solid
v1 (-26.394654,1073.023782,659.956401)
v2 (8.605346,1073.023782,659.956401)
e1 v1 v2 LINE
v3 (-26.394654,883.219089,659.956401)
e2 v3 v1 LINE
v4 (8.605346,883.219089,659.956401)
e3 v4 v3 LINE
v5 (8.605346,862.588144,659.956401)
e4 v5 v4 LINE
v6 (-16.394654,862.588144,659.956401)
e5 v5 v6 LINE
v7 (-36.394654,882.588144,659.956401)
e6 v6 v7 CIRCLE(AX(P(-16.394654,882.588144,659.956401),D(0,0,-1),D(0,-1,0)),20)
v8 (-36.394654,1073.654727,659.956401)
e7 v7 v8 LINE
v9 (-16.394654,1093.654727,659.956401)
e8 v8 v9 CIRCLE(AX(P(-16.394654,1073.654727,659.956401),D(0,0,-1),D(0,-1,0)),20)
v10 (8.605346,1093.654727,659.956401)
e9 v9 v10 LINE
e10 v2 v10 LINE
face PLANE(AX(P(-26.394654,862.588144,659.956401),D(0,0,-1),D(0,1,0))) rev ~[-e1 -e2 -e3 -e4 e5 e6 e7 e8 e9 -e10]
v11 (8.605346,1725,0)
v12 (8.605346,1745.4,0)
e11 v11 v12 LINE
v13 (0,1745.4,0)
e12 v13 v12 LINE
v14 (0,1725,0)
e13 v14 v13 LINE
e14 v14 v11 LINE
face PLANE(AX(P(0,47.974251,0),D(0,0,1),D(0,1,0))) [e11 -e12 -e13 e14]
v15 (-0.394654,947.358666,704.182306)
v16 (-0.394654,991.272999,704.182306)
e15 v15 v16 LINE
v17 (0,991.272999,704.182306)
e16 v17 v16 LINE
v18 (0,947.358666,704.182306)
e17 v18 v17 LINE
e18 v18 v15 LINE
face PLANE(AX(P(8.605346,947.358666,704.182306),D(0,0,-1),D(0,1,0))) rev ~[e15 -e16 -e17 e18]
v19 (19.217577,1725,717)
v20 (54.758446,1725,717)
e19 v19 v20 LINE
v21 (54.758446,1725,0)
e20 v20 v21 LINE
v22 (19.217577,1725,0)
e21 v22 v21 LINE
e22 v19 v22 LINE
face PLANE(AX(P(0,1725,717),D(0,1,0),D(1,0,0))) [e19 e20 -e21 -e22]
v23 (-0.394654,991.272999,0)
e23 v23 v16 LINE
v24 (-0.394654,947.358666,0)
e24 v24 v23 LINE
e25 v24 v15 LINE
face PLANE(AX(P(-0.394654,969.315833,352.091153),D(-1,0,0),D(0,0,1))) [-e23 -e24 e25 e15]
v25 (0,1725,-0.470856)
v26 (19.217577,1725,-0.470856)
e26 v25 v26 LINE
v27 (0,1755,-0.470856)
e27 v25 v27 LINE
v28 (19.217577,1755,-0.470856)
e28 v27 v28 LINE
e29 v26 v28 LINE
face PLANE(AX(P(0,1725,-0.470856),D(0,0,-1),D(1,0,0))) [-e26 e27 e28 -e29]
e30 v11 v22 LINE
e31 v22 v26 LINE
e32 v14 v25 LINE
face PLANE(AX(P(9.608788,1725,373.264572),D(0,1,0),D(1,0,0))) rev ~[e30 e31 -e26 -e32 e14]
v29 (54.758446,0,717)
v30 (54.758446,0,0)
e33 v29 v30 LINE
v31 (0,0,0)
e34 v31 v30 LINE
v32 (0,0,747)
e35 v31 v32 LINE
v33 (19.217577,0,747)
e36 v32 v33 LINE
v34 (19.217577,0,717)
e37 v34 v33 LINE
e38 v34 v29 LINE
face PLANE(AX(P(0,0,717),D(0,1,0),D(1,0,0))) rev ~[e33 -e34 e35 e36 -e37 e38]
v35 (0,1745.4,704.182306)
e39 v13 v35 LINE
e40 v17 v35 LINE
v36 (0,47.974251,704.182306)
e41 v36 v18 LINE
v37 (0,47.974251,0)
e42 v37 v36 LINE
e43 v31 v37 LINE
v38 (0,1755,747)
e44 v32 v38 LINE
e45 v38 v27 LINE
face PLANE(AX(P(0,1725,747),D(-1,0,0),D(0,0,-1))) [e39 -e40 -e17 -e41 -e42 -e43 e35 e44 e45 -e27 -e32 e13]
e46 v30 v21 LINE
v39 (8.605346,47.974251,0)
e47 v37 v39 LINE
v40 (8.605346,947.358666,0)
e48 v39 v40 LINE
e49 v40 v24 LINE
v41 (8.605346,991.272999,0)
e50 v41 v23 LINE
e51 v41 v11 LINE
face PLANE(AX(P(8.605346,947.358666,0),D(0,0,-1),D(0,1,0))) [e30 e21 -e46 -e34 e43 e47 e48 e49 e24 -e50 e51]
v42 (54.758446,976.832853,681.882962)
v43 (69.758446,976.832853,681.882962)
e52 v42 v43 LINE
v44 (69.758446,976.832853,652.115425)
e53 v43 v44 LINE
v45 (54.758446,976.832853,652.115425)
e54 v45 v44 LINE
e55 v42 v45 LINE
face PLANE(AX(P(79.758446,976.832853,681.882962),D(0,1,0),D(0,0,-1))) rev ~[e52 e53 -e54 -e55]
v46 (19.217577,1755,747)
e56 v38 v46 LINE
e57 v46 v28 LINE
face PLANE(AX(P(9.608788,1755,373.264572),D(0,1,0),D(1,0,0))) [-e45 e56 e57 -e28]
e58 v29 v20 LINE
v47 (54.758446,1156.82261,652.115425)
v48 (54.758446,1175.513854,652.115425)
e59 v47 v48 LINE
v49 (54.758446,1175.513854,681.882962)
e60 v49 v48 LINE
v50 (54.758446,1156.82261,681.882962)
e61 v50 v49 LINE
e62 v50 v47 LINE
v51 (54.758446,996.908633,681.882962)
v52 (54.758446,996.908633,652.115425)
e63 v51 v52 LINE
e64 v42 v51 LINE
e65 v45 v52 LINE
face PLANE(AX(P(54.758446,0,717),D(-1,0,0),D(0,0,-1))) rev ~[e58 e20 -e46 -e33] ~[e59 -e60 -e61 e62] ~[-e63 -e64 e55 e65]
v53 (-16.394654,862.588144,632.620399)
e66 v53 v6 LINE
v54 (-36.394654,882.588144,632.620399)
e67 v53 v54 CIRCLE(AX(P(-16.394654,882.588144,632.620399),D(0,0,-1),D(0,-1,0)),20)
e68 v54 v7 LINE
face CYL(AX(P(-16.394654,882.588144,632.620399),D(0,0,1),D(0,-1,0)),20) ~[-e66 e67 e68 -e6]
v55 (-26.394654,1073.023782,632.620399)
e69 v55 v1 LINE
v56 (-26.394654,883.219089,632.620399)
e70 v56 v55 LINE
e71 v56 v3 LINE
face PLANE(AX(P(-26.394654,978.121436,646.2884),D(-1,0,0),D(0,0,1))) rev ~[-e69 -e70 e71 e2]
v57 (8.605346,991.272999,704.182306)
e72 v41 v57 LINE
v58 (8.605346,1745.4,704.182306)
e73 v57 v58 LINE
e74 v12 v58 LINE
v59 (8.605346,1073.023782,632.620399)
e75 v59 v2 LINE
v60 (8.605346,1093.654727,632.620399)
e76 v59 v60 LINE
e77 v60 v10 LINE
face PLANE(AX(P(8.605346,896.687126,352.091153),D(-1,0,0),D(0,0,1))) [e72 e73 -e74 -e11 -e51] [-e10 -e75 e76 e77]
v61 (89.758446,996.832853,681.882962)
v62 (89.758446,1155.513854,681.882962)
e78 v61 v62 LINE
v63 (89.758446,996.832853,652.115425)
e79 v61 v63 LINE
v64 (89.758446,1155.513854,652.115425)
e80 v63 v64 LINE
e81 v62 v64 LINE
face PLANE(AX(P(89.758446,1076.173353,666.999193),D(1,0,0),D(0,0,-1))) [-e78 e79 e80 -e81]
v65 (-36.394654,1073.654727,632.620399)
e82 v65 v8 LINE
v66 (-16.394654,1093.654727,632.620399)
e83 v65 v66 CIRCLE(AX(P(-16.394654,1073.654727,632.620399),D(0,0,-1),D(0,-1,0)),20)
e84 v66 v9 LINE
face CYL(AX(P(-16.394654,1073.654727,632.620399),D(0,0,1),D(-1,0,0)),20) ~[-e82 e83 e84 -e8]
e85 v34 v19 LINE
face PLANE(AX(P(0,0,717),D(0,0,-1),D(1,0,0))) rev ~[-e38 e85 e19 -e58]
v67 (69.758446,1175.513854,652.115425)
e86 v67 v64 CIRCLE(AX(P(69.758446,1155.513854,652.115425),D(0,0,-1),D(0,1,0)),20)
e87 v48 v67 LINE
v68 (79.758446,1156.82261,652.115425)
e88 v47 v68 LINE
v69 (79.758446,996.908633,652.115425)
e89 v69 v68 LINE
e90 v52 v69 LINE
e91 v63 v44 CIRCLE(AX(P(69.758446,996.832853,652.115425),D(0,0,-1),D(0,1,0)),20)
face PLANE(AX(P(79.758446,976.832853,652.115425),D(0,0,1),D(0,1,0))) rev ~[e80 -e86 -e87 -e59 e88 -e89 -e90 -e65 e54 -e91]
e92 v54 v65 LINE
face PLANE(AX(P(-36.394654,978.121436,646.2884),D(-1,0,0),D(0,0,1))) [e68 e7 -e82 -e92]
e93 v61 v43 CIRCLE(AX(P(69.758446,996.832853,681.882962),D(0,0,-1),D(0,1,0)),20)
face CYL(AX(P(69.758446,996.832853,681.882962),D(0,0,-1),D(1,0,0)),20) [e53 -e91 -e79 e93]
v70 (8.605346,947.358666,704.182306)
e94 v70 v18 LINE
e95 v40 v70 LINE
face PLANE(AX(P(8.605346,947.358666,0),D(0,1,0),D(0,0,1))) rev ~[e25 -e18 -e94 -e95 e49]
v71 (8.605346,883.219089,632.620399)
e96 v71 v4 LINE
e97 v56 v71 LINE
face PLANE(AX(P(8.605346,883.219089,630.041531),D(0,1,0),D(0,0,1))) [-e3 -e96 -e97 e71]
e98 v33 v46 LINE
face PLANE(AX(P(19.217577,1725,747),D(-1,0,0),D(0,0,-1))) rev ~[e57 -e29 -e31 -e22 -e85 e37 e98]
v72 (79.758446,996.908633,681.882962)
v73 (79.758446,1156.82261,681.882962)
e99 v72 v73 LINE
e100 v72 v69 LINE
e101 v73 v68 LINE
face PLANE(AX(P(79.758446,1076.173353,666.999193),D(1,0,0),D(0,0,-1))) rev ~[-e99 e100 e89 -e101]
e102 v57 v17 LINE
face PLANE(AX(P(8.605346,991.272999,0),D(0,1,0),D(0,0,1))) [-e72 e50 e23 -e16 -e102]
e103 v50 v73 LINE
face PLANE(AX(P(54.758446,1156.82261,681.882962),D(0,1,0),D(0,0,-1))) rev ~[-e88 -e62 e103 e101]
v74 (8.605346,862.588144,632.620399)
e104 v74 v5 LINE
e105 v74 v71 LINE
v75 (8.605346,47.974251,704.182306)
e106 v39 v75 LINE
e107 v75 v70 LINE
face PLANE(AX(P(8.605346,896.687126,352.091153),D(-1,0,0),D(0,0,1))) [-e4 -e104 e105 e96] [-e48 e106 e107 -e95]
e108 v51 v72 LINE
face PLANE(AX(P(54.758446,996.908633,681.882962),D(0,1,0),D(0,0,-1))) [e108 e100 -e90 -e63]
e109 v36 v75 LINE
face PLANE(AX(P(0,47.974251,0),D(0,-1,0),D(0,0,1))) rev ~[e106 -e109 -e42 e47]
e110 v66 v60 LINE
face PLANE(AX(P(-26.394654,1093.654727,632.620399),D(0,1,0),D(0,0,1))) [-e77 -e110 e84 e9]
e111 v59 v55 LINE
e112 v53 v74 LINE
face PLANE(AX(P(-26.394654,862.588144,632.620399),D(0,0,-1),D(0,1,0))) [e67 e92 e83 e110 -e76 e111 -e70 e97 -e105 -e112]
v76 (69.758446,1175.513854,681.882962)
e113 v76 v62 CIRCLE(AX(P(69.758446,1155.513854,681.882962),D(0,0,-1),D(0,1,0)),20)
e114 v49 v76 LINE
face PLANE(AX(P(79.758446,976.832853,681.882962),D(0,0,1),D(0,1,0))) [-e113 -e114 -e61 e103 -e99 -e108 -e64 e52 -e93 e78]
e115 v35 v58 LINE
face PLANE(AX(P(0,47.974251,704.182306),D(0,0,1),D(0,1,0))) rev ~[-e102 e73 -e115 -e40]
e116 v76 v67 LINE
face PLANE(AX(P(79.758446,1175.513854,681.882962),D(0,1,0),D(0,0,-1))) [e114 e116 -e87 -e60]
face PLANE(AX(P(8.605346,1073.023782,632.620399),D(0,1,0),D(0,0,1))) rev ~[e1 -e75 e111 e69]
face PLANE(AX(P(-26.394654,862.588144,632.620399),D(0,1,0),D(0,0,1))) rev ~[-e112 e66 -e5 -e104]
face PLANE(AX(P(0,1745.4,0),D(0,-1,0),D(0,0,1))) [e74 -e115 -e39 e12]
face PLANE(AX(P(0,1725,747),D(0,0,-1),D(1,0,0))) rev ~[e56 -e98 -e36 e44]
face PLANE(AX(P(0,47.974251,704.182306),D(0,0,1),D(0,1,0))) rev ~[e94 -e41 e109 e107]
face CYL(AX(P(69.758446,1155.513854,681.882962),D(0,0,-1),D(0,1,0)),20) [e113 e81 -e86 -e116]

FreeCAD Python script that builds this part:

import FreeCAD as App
import Part
import Sketcher
from FreeCAD import Vector


def edges_at(feature, points):
    """Names of the edges that pass closest to the given points."""
    edges = feature.Shape.Edges
    near = lambda p: min(range(len(edges)), key=lambda i: edges[i].distToShape(Part.Vertex(*p))[0])
    return sorted({f"Edge{near(p) + 1}" for p in points})


def add_polygon(sketch, points):
    """Adds a closed chain of lines whose ends are joined by coincident constraints."""
    first, n = sketch.GeometryCount, len(points)
    for a, b in zip(points, points[1:] + points[:1]):
        sketch.addGeometry(Part.LineSegment(App.Vector(*a, 0), App.Vector(*b, 0)), False)
    for i in range(n):
        sketch.addConstraint(Sketcher.Constraint("Coincident", first + i, 2, first + (i + 1) % n, 1))

doc = App.newDocument("Part")
body = doc.addObject("PartDesign::Body", "Body")

# Sketch on XZ plane
sketch1 = doc.addObject("Sketcher::SketchObject", "Sketch")
body.addObject(sketch1)
sketch1.AttachmentSupport = (doc.XZ_Plane, [""])
sketch1.MapMode = "FlatFace"
add_polygon(sketch1, [(0, 0), (0, 717), (55, 717), (55, 0)])  # lines 0-3
sketch1.addConstraint([
    Sketcher.Constraint("Vertical", 0),
    Sketcher.Constraint("Horizontal", 1),
    Sketcher.Constraint("Vertical", 2),
    Sketcher.Constraint("Horizontal", 3),
    Sketcher.Constraint("Coincident", 3, 2, -1, 1),
    Sketcher.Constraint("DistanceY", 0, 1, 0, 2, 717.0),
    Sketcher.Constraint("DistanceX", 1, 1, 1, 2, 54.758446),
])
pad1 = doc.addObject("PartDesign::Pad", "Pad")
body.addObject(pad1)
pad1.Profile = sketch1
pad1.Length = 1725
pad1.Reversed = True

# Sketch on XY plane
sketch2 = doc.addObject("Sketcher::SketchObject", "Sketch001")
body.addObject(sketch2)
sketch2.AttachmentSupport = (doc.XY_Plane, [""])
sketch2.MapMode = "FlatFace"
sketch2.AttachmentOffset = App.Placement(Vector(0, 0, 717), App.Rotation())
add_polygon(sketch2, [(0, 1725), (0, 0), (19, 0), (19, 1725)])  # lines 0-3
sketch2.addConstraint([
    Sketcher.Constraint("Vertical", 0),
    Sketcher.Constraint("Horizontal", 1),
    Sketcher.Constraint("Vertical", 2),
    Sketcher.Constraint("Horizontal", 3),
    Sketcher.Constraint("Coincident", 0, 2, -1, 1),
    Sketcher.Constraint("DistanceY", 0, 2, 0, 1, 1725.0),
    Sketcher.Constraint("DistanceX", 1, 1, 1, 2, 19.217577),
])
pad2 = doc.addObject("PartDesign::Pad", "Pad001")
body.addObject(pad2)
pad2.Profile = sketch2
pad2.Length = 30

# Sketch on XZ plane
sketch3 = doc.addObject("Sketcher::SketchObject", "Sketch002")
body.addObject(sketch3)
sketch3.AttachmentSupport = (doc.XZ_Plane, [""])
sketch3.MapMode = "FlatFace"
sketch3.AttachmentOffset = App.Placement(Vector(0, 0, -1725), App.Rotation())
add_polygon(sketch3, [(0, 0), (0, 747), (19, 747), (19, 0)])  # lines 0-3
sketch3.addConstraint([
    Sketcher.Constraint("Vertical", 0),
    Sketcher.Constraint("Horizontal", 1),
    Sketcher.Constraint("Vertical", 2),
    Sketcher.Constraint("Horizontal", 3),
    Sketcher.Constraint("PointOnObject", 0, 2, -2),
    Sketcher.Constraint("DistanceY", -1, 1, 0, 2, 747.0),
    Sketcher.Constraint("DistanceX", 1, 1, 1, 2, 19.217577),
    Sketcher.Constraint("DistanceY", 0, 1, 0, 2, 747.470856),
])
pad3 = doc.addObject("PartDesign::Pad", "Pad002")
body.addObject(pad3)
pad3.Profile = sketch3
pad3.Length = 30
pad3.Reversed = True

# Sketch on YZ plane
sketch4 = doc.addObject("Sketcher::SketchObject", "Sketch003")
body.addObject(sketch4)
sketch4.AttachmentSupport = (doc.YZ_Plane, [""])
sketch4.MapMode = "FlatFace"
add_polygon(sketch4, [(1745, 0), (48, 0), (48, 704), (1745, 704)])  # lines 0-3
sketch4.addConstraint([
    Sketcher.Constraint("Horizontal", 0),
    Sketcher.Constraint("Vertical", 1),
    Sketcher.Constraint("Horizontal", 2),
    Sketcher.Constraint("Vertical", 3),
    Sketcher.Constraint("PointOnObject", 0, 2, -1),
    Sketcher.Constraint("DistanceX", -1, 1, 2, 2, 1745.4),
    Sketcher.Constraint("DistanceX", 0, 2, 0, 1, 1697.425749),
    Sketcher.Constraint("DistanceY", 1, 1, 1, 2, 704.182306),
])
pocket1 = doc.addObject("PartDesign::Pocket", "Pocket")
body.addObject(pocket1)
pocket1.Profile = sketch4
pocket1.Length = 8.605346
pocket1.Reversed = True

# Sketch on YZ plane
sketch5 = doc.addObject("Sketcher::SketchObject", "Sketch004")
body.addObject(sketch5)
sketch5.AttachmentSupport = (doc.YZ_Plane, [""])
sketch5.MapMode = "FlatFace"
sketch5.AttachmentOffset = App.Placement(Vector(0, 0, 8.605346), App.Rotation())
add_polygon(sketch5, [(991, 0), (947, 0), (947, 704), (991, 704)])  # lines 0-3
sketch5.addConstraint([
    Sketcher.Constraint("Horizontal", 0),
    Sketcher.Constraint("Vertical", 1),
    Sketcher.Constraint("Horizontal", 2),
    Sketcher.Constraint("Vertical", 3),
    Sketcher.Constraint("PointOnObject", 0, 2, -1),
    Sketcher.Constraint("DistanceX", -1, 1, 2, 2, 991.272999),
    Sketcher.Constraint("DistanceX", 0, 2, 0, 1, 43.914333),
    Sketcher.Constraint("DistanceY", 1, 1, 1, 2, 704.182306),
])
pad4 = doc.addObject("PartDesign::Pad", "Pad003")
body.addObject(pad4)
pad4.Profile = sketch5
pad4.Length = 9
pad4.Reversed = True

# Sketch on YZ plane
sketch6 = doc.addObject("Sketcher::SketchObject", "Sketch005")
body.addObject(sketch6)
sketch6.AttachmentSupport = (doc.YZ_Plane, [""])
sketch6.MapMode = "FlatFace"
sketch6.AttachmentOffset = App.Placement(Vector(0, 0, 8.605346), App.Rotation())
add_polygon(sketch6, [(1094, 633), (1073, 633), (1073, 663), (1094, 663)])  # lines 0-3
sketch6.addConstraint([
    Sketcher.Constraint("Horizontal", 0),
    Sketcher.Constraint("Vertical", 1),
    Sketcher.Constraint("Horizontal", 2),
    Sketcher.Constraint("Vertical", 3),
    Sketcher.Constraint("DistanceY", 1, 1, 1, 2, 29.91487),
    Sketcher.Constraint("DistanceY", -1, 1, 0, 2, 632.620399),
    Sketcher.Constraint("DistanceX", 0, 2, 0, 1, 20.630945),
    Sketcher.Constraint("DistanceX", -1, 1, 0, 2, 1073.023782),
])
pad5 = doc.addObject("PartDesign::Pad", "Pad004")
body.addObject(pad5)
pad5.Profile = sketch6
pad5.Length = 35
pad5.Reversed = True

# Sketch on YZ plane
sketch7 = doc.addObject("Sketcher::SketchObject", "Sketch006")
body.addObject(sketch7)
sketch7.AttachmentSupport = (doc.YZ_Plane, [""])
sketch7.MapMode = "FlatFace"
sketch7.AttachmentOffset = App.Placement(Vector(0, 0, 8.605346), App.Rotation())
add_polygon(sketch7, [(883, 630), (863, 630), (863, 660), (883, 660)])  # lines 0-3
sketch7.addConstraint([
    Sketcher.Constraint("Horizontal", 0),
    Sketcher.Constraint("Vertical", 1),
    Sketcher.Constraint("Horizontal", 2),
    Sketcher.Constraint("Vertical", 3),
    Sketcher.Constraint("DistanceY", 1, 1, 1, 2, 29.91487),
    Sketcher.Constraint("DistanceY", -1, 1, 1, 2, 659.956401),
    Sketcher.Constraint("DistanceX", 0, 2, 0, 1, 20.630945),
    Sketcher.Constraint("DistanceX", -1, 1, 2, 2, 883.219089),
])
pad6 = doc.addObject("PartDesign::Pad", "Pad005")
body.addObject(pad6)
pad6.Profile = sketch7
pad6.Length = 35
pad6.Reversed = True

# Sketch on YZ plane
sketch8 = doc.addObject("Sketcher::SketchObject", "Sketch007")
body.addObject(sketch8)
sketch8.AttachmentSupport = (doc.YZ_Plane, [""])
sketch8.MapMode = "FlatFace"
sketch8.AttachmentOffset = App.Placement(Vector(0, 0, -26.394654), App.Rotation())
add_polygon(sketch8, [(1094, 633), (863, 633), (863, 660), (1094, 660)])  # lines 0-3
sketch8.addConstraint([
    Sketcher.Constraint("Horizontal", 0),
    Sketcher.Constraint("Vertical", 1),
    Sketcher.Constraint("Horizontal", 2),
    Sketcher.Constraint("Vertical", 3),
    Sketcher.Constraint("DistanceY", -1, 1, 0, 2, 632.620399),
    Sketcher.Constraint("DistanceY", -1, 1, 1, 2, 659.956401),
    Sketcher.Constraint("DistanceX", 0, 2, 0, 1, 231.066583),
    Sketcher.Constraint("DistanceX", -1, 1, 0, 2, 862.588144),
])
pad7 = doc.addObject("PartDesign::Pad", "Pad006")
body.addObject(pad7)
pad7.Profile = sketch8
pad7.Length = 10
pad7.Reversed = True

# Sketch on YZ plane
sketch9 = doc.addObject("Sketcher::SketchObject", "Sketch008")
body.addObject(sketch9)
sketch9.AttachmentSupport = (doc.YZ_Plane, [""])
sketch9.MapMode = "FlatFace"
sketch9.AttachmentOffset = App.Placement(Vector(0, 0, -26.394654), App.Rotation())
add_polygon(sketch9, [(1093.7, 660), (1073, 660), (1073, 662.5), (1093.7, 662.5)])  # lines 0-3
sketch9.addConstraint([
    Sketcher.Constraint("Horizontal", 0),
    Sketcher.Constraint("Vertical", 1),
    Sketcher.Constraint("Horizontal", 2),
    Sketcher.Constraint("Vertical", 3),
    Sketcher.Constraint("DistanceY", 1, 1, 1, 2, 2.578868),
    Sketcher.Constraint("DistanceY", -1, 1, 0, 2, 659.956401),
    Sketcher.Constraint("DistanceX", 0, 2, 0, 1, 20.630945),
    Sketcher.Constraint("DistanceX", -1, 1, 0, 2, 1073.023782),
])
pocket2 = doc.addObject("PartDesign::Pocket", "Pocket001")
body.addObject(pocket2)
pocket2.Profile = sketch9
pocket2.Length = 35
pocket2.Reversed = True

# Sketch on YZ plane
sketch10 = doc.addObject("Sketcher::SketchObject", "Sketch009")
body.addObject(sketch10)
sketch10.AttachmentSupport = (doc.YZ_Plane, [""])
sketch10.MapMode = "FlatFace"
sketch10.AttachmentOffset = App.Placement(Vector(0, 0, -26.394654), App.Rotation())
add_polygon(sketch10, [(883.2, 630), (862.6, 630), (862.6, 632.6), (883.2, 632.6)])  # lines 0-3
sketch10.addConstraint([
    Sketcher.Constraint("Horizontal", 0),
    Sketcher.Constraint("Vertical", 1),
    Sketcher.Constraint("Horizontal", 2),
    Sketcher.Constraint("Vertical", 3),
    Sketcher.Constraint("DistanceY", 1, 1, 1, 2, 2.578868),
    Sketcher.Constraint("DistanceY", -1, 1, 1, 2, 632.620399),
    Sketcher.Constraint("DistanceX", 0, 2, 0, 1, 20.630945),
    Sketcher.Constraint("DistanceX", -1, 1, 2, 2, 883.219089),
])
pocket3 = doc.addObject("PartDesign::Pocket", "Pocket002")
body.addObject(pocket3)
pocket3.Profile = sketch10
pocket3.Length = 35
pocket3.Reversed = True
doc.recompute()

fillet = doc.addObject("PartDesign::Fillet", "Fillet")
body.addObject(fillet)
fillet.Base = (pocket3, edges_at(pocket3, [(-36.395, 862.588, 646.288)]))
fillet.Radius = 20
doc.recompute()

fillet2 = doc.addObject("PartDesign::Fillet", "Fillet001")
body.addObject(fillet2)
fillet2.Base = (fillet, edges_at(fillet, [(-36.395, 1093.655, 646.288)]))
fillet2.Radius = 20

# Sketch on YZ plane
sketch11 = doc.addObject("Sketcher::SketchObject", "Sketch010")
body.addObject(sketch11)
sketch11.AttachmentSupport = (doc.YZ_Plane, [""])
sketch11.MapMode = "FlatFace"
sketch11.AttachmentOffset = App.Placement(Vector(0, 0, 54.758446), App.Rotation())
add_polygon(sketch11, [(1176, 682), (1157, 682), (1157, 652), (1176, 652)])  # lines 0-3
add_polygon(sketch11, [(997, 682), (977, 682), (977, 652), (997, 652)])  # lines 4-7
sketch11.addConstraint([
    Sketcher.Constraint("Horizontal", 0),
    Sketcher.Constraint("Vertical", 1),
    Sketcher.Constraint("Horizontal", 2),
    Sketcher.Constraint("Vertical", 3),
    Sketcher.Constraint("Horizontal", 4),
    Sketcher.Constraint("Vertical", 5),
    Sketcher.Constraint("Horizontal", 6),
    Sketcher.Constraint("Vertical", 7),
    Sketcher.Constraint("Horizontal", 3, 2, 4, 2),
    Sketcher.Constraint("Horizontal", 2, 2, 5, 2),
    Sketcher.Constraint("DistanceX", 4, 2, 3, 2, 198.681001),
    Sketcher.Constraint("DistanceX", 4, 2, 4, 1, 20.075781),
    Sketcher.Constraint("DistanceX", 0, 2, 0, 1, 18.691244),
    Sketcher.Constraint("DistanceY", 1, 2, 1, 1, 29.767537),
    Sketcher.Constraint("DistanceX", -1, 1, 0, 2, 1156.82261),
    Sketcher.Constraint("DistanceY", -1, 1, 0, 2, 681.882962),
])
pad8 = doc.addObject("PartDesign::Pad", "Pad007")
body.addObject(pad8)
pad8.Profile = sketch11
pad8.Length = 25

# Sketch on YZ plane
sketch12 = doc.addObject("Sketcher::SketchObject", "Sketch011")
body.addObject(sketch12)
sketch12.AttachmentSupport = (doc.YZ_Plane, [""])
sketch12.MapMode = "FlatFace"
sketch12.AttachmentOffset = App.Placement(Vector(0, 0, 79.758446), App.Rotation())
add_polygon(sketch12, [(1176, 682), (977, 682), (977, 652), (1176, 652)])  # lines 0-3
sketch12.addConstraint([
    Sketcher.Constraint("Horizontal", 0),
    Sketcher.Constraint("Vertical", 1),
    Sketcher.Constraint("Horizontal", 2),
    Sketcher.Constraint("Vertical", 3),
    Sketcher.Constraint("DistanceX", 0, 2, 0, 1, 198.681001),
    Sketcher.Constraint("DistanceY", 1, 2, 1, 1, 29.767537),
    Sketcher.Constraint("DistanceY", -1, 1, 0, 2, 681.882962),
    Sketcher.Constraint("DistanceX", -1, 1, 0, 2, 976.832853),
])
pad9 = doc.addObject("PartDesign::Pad", "Pad008")
body.addObject(pad9)
pad9.Profile = sketch12
pad9.Length = 10
doc.recompute()

fillet3 = doc.addObject("PartDesign::Fillet", "Fillet002")
body.addObject(fillet3)
fillet3.Base = (pad9, edges_at(pad9, [(89.758, 1175.514, 666.999)]))
fillet3.Radius = 20
doc.recompute()

fillet4 = doc.addObject("PartDesign::Fillet", "Fillet003")
body.addObject(fillet4)
fillet4.Base = (fillet3, edges_at(fillet3, [(89.758, 976.833, 666.999)]))
fillet4.Radius = 20

doc.recompute()
